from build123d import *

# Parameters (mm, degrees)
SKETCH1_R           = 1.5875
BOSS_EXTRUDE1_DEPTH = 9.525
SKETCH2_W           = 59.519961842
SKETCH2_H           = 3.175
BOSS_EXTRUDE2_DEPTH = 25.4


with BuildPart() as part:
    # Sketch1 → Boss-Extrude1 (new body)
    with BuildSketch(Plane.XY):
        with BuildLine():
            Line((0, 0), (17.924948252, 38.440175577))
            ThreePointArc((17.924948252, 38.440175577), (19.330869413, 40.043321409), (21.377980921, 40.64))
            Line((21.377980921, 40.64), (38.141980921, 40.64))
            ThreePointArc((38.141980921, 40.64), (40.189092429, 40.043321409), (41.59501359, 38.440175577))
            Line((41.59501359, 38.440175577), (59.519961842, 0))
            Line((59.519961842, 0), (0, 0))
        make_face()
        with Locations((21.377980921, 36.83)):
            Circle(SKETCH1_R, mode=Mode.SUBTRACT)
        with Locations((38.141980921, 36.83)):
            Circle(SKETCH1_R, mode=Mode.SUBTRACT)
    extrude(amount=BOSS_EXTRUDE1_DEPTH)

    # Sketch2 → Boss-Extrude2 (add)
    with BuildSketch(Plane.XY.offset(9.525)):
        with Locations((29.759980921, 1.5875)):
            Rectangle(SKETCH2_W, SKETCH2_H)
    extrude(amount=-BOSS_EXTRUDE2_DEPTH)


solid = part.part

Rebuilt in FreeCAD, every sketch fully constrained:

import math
import FreeCAD as App
import Part
import Sketcher
from FreeCAD import Vector
Q = App.Units.Quantity


def add_polygon(sketch, points):
    """Adds a closed chain of lines whose ends are joined by coincident constraints."""
    first, n = sketch.GeometryCount, len(points)
    for a, b in zip(points, points[1:] + points[:1]):
        sketch.addGeometry(Part.LineSegment(App.Vector(*a, 0), App.Vector(*b, 0)), False)
    for i in range(n):
        sketch.addConstraint(Sketcher.Constraint("Coincident", first + i, 2, first + (i + 1) % n, 1))

doc = App.newDocument("Part")
body = doc.addObject("PartDesign::Body", "Body")

sketch1 = body.newObject("Sketcher::SketchObject", "Sketch")
sketch1.AttachmentSupport = (doc.getObject("XY_Plane"), [""])
sketch1.MapMode = "FlatFace"
sketch1.addGeometry([
    Part.LineSegment(Vector(17.924948, 38.440176, 0), Vector(0, 0, 0)),
    Part.LineSegment(Vector(0, 0, 0), Vector(59.519962, 0, 0)),
    Part.LineSegment(Vector(59.519962, 0, 0), Vector(41.595014, 38.440176, 0)),
    Part.ArcOfCircle(Part.Circle(Vector(38.141981, 36.83, 0), Vector(0, 0, 1), 3.81), math.radians(25), math.radians(90)),
    Part.LineSegment(Vector(38.141981, 40.64, 0), Vector(21.377981, 40.64, 0)),
    Part.ArcOfCircle(Part.Circle(Vector(21.377981, 36.83, 0), Vector(0, 0, 1), 3.81), math.radians(90), math.radians(155)),
    Part.Circle(Vector(38.141981, 36.83, 0), Vector(0, 0, 1), 1.5875),
    Part.Circle(Vector(21.377981, 36.83, 0), Vector(0, 0, 1), 1.5875),
], False)
sketch1.addConstraint([
    Sketcher.Constraint("Coincident", 0, 2, 1, 1),
    Sketcher.Constraint("Coincident", 1, 2, 2, 1),
    Sketcher.Constraint("Tangent", 2, 2, 3, 1),
    Sketcher.Constraint("Tangent", 3, 2, 4, 1),
    Sketcher.Constraint("Tangent", 4, 2, 5, 1),
    Sketcher.Constraint("Tangent", 5, 2, 0, 1),
    Sketcher.Constraint("Horizontal", 1),
    Sketcher.Constraint("Horizontal", 4),
    Sketcher.Constraint("Coincident", 0, 2, -1, 1),
    Sketcher.Constraint("Coincident", 6, 3, 3, 3),
    Sketcher.Constraint("Coincident", 7, 3, 5, 3),
    Sketcher.Constraint("Equal", 3, 5),
    Sketcher.Constraint("Equal", 6, 7),
    Sketcher.Constraint("Horizontal", 2, 2, 5, 2),
    Sketcher.Constraint("Radius", 3, Q("0.15 in")),
    Sketcher.Constraint("Diameter", 6, Q("0.125 in")),
    Sketcher.Constraint("Angle", 0, Q("-115 deg")),
    Sketcher.Constraint("DistanceX", 4, 2, 4, 1, Q("0.66 in")),
    Sketcher.Constraint("DistanceY", -1, 1, 3, 2, Q("1.6 in")),
])
pad1 = body.newObject("PartDesign::Pad", "Pad")
pad1.Profile = sketch1
pad1.Length = Q("0.375 in")

sketch2 = body.newObject("Sketcher::SketchObject", "Sketch001")
sketch2.AttachmentSupport = (doc.getObject("XY_Plane"), [""])
sketch2.MapMode = "FlatFace"
sketch2.AttachmentOffset = App.Placement(Vector(0, 0, 0.375 * 25.4), App.Rotation())
add_polygon(sketch2, [(0, 3.175), (0, 0), (59.519962, 0), (59.519962, 3.175)])
sketch2.addConstraint([
    Sketcher.Constraint("Vertical", 0),
    Sketcher.Constraint("Horizontal", 1),
    Sketcher.Constraint("Vertical", 2),
    Sketcher.Constraint("Horizontal", 3),
    Sketcher.Constraint("Coincident", 0, 2, -1, 1),
    Sketcher.Constraint("DistanceY", 0, 2, 0, 1, Q("0.125 in")),
    Sketcher.Constraint("DistanceX", 1, 1, 1, 2, Q("59.519962 mm")),
])
pad2 = body.newObject("PartDesign::Pad", "Pad001")
pad2.Profile = sketch2
pad2.Length = Q("1 in")
pad2.Reversed = True

doc.recompute()
